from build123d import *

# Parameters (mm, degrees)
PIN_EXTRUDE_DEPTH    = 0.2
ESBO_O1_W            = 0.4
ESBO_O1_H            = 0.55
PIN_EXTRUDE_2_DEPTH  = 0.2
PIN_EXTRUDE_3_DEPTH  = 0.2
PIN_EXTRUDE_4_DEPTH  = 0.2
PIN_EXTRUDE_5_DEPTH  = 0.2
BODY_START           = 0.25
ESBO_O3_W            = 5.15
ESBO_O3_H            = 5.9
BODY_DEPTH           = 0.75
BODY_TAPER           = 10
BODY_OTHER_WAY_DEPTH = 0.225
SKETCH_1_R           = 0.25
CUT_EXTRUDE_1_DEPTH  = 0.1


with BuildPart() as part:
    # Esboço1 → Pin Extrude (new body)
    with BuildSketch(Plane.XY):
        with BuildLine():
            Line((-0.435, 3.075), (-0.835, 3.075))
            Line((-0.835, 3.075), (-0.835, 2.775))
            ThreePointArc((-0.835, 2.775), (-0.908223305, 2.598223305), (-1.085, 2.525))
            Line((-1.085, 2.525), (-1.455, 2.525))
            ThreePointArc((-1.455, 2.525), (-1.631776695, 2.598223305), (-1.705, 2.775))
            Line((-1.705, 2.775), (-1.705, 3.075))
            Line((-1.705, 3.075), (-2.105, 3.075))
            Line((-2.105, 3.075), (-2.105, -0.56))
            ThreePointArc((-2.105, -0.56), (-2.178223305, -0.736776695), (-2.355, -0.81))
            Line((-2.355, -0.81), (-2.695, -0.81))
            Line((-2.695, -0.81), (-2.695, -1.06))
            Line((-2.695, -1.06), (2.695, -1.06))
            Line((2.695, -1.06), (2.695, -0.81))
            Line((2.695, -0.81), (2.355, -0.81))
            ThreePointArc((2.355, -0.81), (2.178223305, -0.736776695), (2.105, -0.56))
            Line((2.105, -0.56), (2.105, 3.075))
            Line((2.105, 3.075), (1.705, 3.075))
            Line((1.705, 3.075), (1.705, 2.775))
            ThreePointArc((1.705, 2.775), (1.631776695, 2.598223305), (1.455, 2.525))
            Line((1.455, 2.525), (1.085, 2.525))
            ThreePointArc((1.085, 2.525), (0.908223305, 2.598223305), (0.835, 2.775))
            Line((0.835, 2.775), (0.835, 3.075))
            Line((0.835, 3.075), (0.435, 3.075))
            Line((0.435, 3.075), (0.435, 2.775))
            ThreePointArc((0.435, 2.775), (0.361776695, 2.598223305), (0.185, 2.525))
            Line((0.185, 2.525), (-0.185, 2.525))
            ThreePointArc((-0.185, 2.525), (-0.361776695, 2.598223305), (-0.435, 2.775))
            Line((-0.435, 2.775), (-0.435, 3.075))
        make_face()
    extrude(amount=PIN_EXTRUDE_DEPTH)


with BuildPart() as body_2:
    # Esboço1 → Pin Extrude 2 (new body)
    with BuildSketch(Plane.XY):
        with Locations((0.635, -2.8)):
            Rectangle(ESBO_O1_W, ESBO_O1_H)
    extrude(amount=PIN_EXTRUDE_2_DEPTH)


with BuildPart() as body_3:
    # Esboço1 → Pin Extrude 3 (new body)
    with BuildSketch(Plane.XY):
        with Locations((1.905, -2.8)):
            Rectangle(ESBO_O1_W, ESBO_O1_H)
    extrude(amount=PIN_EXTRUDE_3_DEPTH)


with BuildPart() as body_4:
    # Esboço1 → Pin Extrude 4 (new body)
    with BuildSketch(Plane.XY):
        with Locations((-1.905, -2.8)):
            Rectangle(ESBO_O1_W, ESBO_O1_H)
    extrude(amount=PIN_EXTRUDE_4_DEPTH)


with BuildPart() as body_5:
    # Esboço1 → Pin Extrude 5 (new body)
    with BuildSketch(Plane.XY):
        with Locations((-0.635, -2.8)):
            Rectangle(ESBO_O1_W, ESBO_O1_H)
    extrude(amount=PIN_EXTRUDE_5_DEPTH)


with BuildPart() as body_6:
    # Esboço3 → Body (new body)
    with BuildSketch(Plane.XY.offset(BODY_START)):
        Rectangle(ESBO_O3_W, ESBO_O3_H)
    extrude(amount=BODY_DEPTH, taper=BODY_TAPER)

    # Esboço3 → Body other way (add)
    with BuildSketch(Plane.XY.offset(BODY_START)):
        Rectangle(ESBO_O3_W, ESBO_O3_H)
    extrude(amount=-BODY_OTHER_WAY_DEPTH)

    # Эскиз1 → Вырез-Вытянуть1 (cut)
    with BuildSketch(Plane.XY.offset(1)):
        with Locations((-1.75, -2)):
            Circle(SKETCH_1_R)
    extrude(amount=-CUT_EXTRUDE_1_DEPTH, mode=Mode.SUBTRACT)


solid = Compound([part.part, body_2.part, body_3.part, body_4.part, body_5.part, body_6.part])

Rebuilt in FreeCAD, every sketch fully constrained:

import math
import FreeCAD as App
import Part
import Sketcher

V = App.Vector
Q = App.Units.Quantity

doc = App.newDocument("Part")
body = doc.addObject("PartDesign::Body", "Body")

# Sketch on XY plane
sketch1 = doc.addObject("Sketcher::SketchObject", "Sketch")
body.addObject(sketch1)
sketch1.AttachmentSupport = (doc.XY_Plane, [""])
sketch1.MapMode = "FlatFace"
sketch1.addGeometry([
    Part.LineSegment(V(-0.43, 3.08, 0), V(-0.83, 3.08, 0)),  # 0
    Part.LineSegment(V(-0.83, 3.08, 0), V(-0.83, 2.77, 0)),  # 1
    Part.ArcOfCircle(Part.Circle(V(-1.09, 2.78, 0), V(0, 0, 1), 0.25), math.radians(-90), math.radians(0)),  # 2
    Part.LineSegment(V(-1.08, 2.52, 0), V(-1.46, 2.52, 0)),  # 3
    Part.ArcOfCircle(Part.Circle(V(-1.45, 2.78, 0), V(0, 0, 1), 0.25), math.radians(-180), math.radians(-90)),  # 4
    Part.LineSegment(V(-1.71, 2.77, 0), V(-1.71, 3.08, 0)),  # 5
    Part.LineSegment(V(-1.71, 3.08, 0), V(-2.1, 3.08, 0)),  # 6
    Part.LineSegment(V(-2.1, 3.08, 0), V(-2.1, -0.56, 0)),  # 7
    Part.ArcOfCircle(Part.Circle(V(-2.36, -0.56, 0), V(0, 0, 1), 0.25), math.radians(-90), math.radians(0)),  # 8
    Part.LineSegment(V(-2.35, -0.81, 0), V(-2.69, -0.81, 0)),  # 9
    Part.LineSegment(V(-2.69, -0.81, 0), V(-2.69, -1.06, 0)),  # 10
    Part.LineSegment(V(-2.69, -1.06, 0), V(2.69, -1.06, 0)),  # 11
    Part.LineSegment(V(2.69, -1.06, 0), V(2.69, -0.81, 0)),  # 12
    Part.LineSegment(V(2.69, -0.81, 0), V(2.35, -0.81, 0)),  # 13
    Part.ArcOfCircle(Part.Circle(V(2.36, -0.56, 0), V(0, 0, 1), 0.25), math.radians(-180), math.radians(-90)),  # 14
    Part.LineSegment(V(2.1, -0.56, 0), V(2.1, 3.08, 0)),  # 15
    Part.LineSegment(V(2.1, 3.08, 0), V(1.71, 3.08, 0)),  # 16
    Part.LineSegment(V(1.71, 3.08, 0), V(1.71, 2.77, 0)),  # 17
    Part.ArcOfCircle(Part.Circle(V(1.45, 2.78, 0), V(0, 0, 1), 0.25), math.radians(-90), math.radians(0)),  # 18
    Part.LineSegment(V(1.46, 2.52, 0), V(1.08, 2.52, 0)),  # 19
    Part.ArcOfCircle(Part.Circle(V(1.09, 2.78, 0), V(0, 0, 1), 0.25), math.radians(-180), math.radians(-90)),  # 20
    Part.LineSegment(V(0.83, 2.77, 0), V(0.83, 3.08, 0)),  # 21
    Part.LineSegment(V(0.83, 3.08, 0), V(0.43, 3.08, 0)),  # 22
    Part.LineSegment(V(0.43, 3.08, 0), V(0.43, 2.77, 0)),  # 23
    Part.ArcOfCircle(Part.Circle(V(0.18, 2.78, 0), V(0, 0, 1), 0.25), math.radians(-90), math.radians(0)),  # 24
    Part.LineSegment(V(0.18, 2.52, 0), V(-0.18, 2.52, 0)),  # 25
    Part.ArcOfCircle(Part.Circle(V(-0.18, 2.78, 0), V(0, 0, 1), 0.25), math.radians(-180), math.radians(-90)),  # 26
    Part.LineSegment(V(-0.43, 2.77, 0), V(-0.43, 3.08, 0)),  # 27
], False)
sketch1.addConstraint([
    Sketcher.Constraint("Coincident", 0, 2, 1, 1),
    Sketcher.Constraint("Tangent", 1, 2, 2, 2),
    Sketcher.Constraint("Tangent", 2, 1, 3, 1),
    Sketcher.Constraint("Tangent", 3, 2, 4, 2),
    Sketcher.Constraint("Tangent", 4, 1, 5, 1),
    Sketcher.Constraint("Coincident", 5, 2, 6, 1),
    Sketcher.Constraint("Coincident", 6, 2, 7, 1),
    Sketcher.Constraint("Tangent", 7, 2, 8, 2),
    Sketcher.Constraint("Tangent", 8, 1, 9, 1),
    Sketcher.Constraint("Coincident", 9, 2, 10, 1),
    Sketcher.Constraint("Coincident", 10, 2, 11, 1),
    Sketcher.Constraint("Coincident", 11, 2, 12, 1),
    Sketcher.Constraint("Coincident", 12, 2, 13, 1),
    Sketcher.Constraint("Tangent", 13, 2, 14, 2),
    Sketcher.Constraint("Tangent", 14, 1, 15, 1),
    Sketcher.Constraint("Coincident", 15, 2, 16, 1),
    Sketcher.Constraint("Coincident", 16, 2, 17, 1),
    Sketcher.Constraint("Tangent", 17, 2, 18, 2),
    Sketcher.Constraint("Tangent", 18, 1, 19, 1),
    Sketcher.Constraint("Tangent", 19, 2, 20, 2),
    Sketcher.Constraint("Tangent", 20, 1, 21, 1),
    Sketcher.Constraint("Coincident", 21, 2, 22, 1),
    Sketcher.Constraint("Coincident", 22, 2, 23, 1),
    Sketcher.Constraint("Tangent", 23, 2, 24, 2),
    Sketcher.Constraint("Tangent", 24, 1, 25, 1),
    Sketcher.Constraint("Tangent", 25, 2, 26, 2),
    Sketcher.Constraint("Tangent", 26, 1, 27, 1),
    Sketcher.Constraint("Coincident", 27, 2, 0, 1),
    Sketcher.Constraint("Horizontal", 0),
    Sketcher.Constraint("Vertical", 1),
    Sketcher.Constraint("Horizontal", 3),
    Sketcher.Constraint("Vertical", 5),
    Sketcher.Constraint("Horizontal", 6),
    Sketcher.Constraint("Vertical", 7),
    Sketcher.Constraint("Horizontal", 9),
    Sketcher.Constraint("Vertical", 10),
    Sketcher.Constraint("Horizontal", 11),
    Sketcher.Constraint("Vertical", 12),
    Sketcher.Constraint("Horizontal", 13),
    Sketcher.Constraint("Vertical", 15),
    Sketcher.Constraint("Horizontal", 16),
    Sketcher.Constraint("Vertical", 17),
    Sketcher.Constraint("Horizontal", 19),
    Sketcher.Constraint("Vertical", 21),
    Sketcher.Constraint("Horizontal", 22),
    Sketcher.Constraint("Vertical", 23),
    Sketcher.Constraint("Horizontal", 25),
    Sketcher.Constraint("Vertical", 27),
    Sketcher.Constraint("Equal", 2, 4),
    Sketcher.Constraint("Equal", 4, 8),
    Sketcher.Constraint("Equal", 8, 14),
    Sketcher.Constraint("Equal", 14, 18),
    Sketcher.Constraint("Equal", 18, 20),
    Sketcher.Constraint("Equal", 20, 24),
    Sketcher.Constraint("Equal", 24, 26),
    Sketcher.Constraint("Symmetric", 8, 3, 14, 3, -2),
    Sketcher.Constraint("Symmetric", 4, 3, 18, 3, -2),
    Sketcher.Constraint("Symmetric", 0, 2, 21, 2, -2),
    Sketcher.Constraint("Horizontal", 20, 3, 24, 3),
    Sketcher.Constraint("Horizontal", 0, 2, 5, 2),
    Sketcher.Constraint("Horizontal", 6, 2, 15, 2),
    Sketcher.Constraint("Equal", 0, 6),
    Sketcher.Constraint("Equal", 9, 13),
    Sketcher.Constraint("Equal", 16, 22),
    Sketcher.Constraint("Equal", 19, 25),
    Sketcher.Constraint("Radius", 2, Q("0.25 mm")),
    Sketcher.Constraint("DistanceX", 0, 2, 0, 1, Q("0.4 mm")),
    Sketcher.Constraint("DistanceY", 1, 2, 1, 1, Q("0.3 mm")),
    Sketcher.Constraint("DistanceX", 3, 2, 3, 1, Q("0.37 mm")),
    Sketcher.Constraint("DistanceX", 9, 2, 9, 1, Q("0.34 mm")),
    Sketcher.Constraint("DistanceY", 10, 2, 10, 1, Q("0.25 mm")),
    Sketcher.Constraint("DistanceY", 7, 2, 7, 1, Q("3.635 mm")),
    Sketcher.Constraint("DistanceY", 8, 3, -1, 1, Q("0.56 mm")),
])
pad1 = doc.addObject("PartDesign::Pad", "Pad")
body.addObject(pad1)
pad1.Profile = sketch1
pad1.Length = 0.2
body2 = doc.addObject("PartDesign::Body", "Body001")

# Sketch on XY plane
sketch2 = doc.addObject("Sketcher::SketchObject", "Sketch001")
body2.addObject(sketch2)
sketch2.AttachmentSupport = (doc.getObject("XY_Plane001"), [""])
sketch2.MapMode = "FlatFace"
sketch2.addGeometry([
    Part.LineSegment(V(0.43, -2.52, 0), V(0.43, -3.08, 0)),
    Part.LineSegment(V(0.43, -3.08, 0), V(0.83, -3.08, 0)),
    Part.LineSegment(V(0.83, -3.08, 0), V(0.83, -2.52, 0)),
    Part.LineSegment(V(0.83, -2.52, 0), V(0.43, -2.52, 0)),
], False)
sketch2.addConstraint([
    Sketcher.Constraint("Coincident", 0, 2, 1, 1),
    Sketcher.Constraint("Coincident", 1, 2, 2, 1),
    Sketcher.Constraint("Coincident", 2, 2, 3, 1),
    Sketcher.Constraint("Coincident", 3, 2, 0, 1),
    Sketcher.Constraint("Vertical", 0),
    Sketcher.Constraint("Horizontal", 1),
    Sketcher.Constraint("Vertical", 2),
    Sketcher.Constraint("Horizontal", 3),
    Sketcher.Constraint("DistanceX", 1, 1, 1, 2, Q("0.4 mm")),
    Sketcher.Constraint("DistanceY", 0, 2, 0, 1, Q("0.55 mm")),
    Sketcher.Constraint("DistanceX", -1, 1, 0, 2, Q("0.435 mm")),
    Sketcher.Constraint("DistanceY", 0, 2, -1, 1, Q("3.075 mm")),
])
pad2 = doc.addObject("PartDesign::Pad", "Pad001")
body2.addObject(pad2)
pad2.Profile = sketch2
pad2.Length = 0.2
body3 = doc.addObject("PartDesign::Body", "Body002")

# Sketch on XY plane
sketch3 = doc.addObject("Sketcher::SketchObject", "Sketch002")
body3.addObject(sketch3)
sketch3.AttachmentSupport = (doc.getObject("XY_Plane002"), [""])
sketch3.MapMode = "FlatFace"
sketch3.addGeometry([
    Part.LineSegment(V(1.71, -2.52, 0), V(1.71, -3.08, 0)),
    Part.LineSegment(V(1.71, -3.08, 0), V(2.1, -3.08, 0)),
    Part.LineSegment(V(2.1, -3.08, 0), V(2.1, -2.52, 0)),
    Part.LineSegment(V(2.1, -2.52, 0), V(1.71, -2.52, 0)),
], False)
sketch3.addConstraint([
    Sketcher.Constraint("Coincident", 0, 2, 1, 1),
    Sketcher.Constraint("Coincident", 1, 2, 2, 1),
    Sketcher.Constraint("Coincident", 2, 2, 3, 1),
    Sketcher.Constraint("Coincident", 3, 2, 0, 1),
    Sketcher.Constraint("Vertical", 0),
    Sketcher.Constraint("Horizontal", 1),
    Sketcher.Constraint("Vertical", 2),
    Sketcher.Constraint("Horizontal", 3),
    Sketcher.Constraint("DistanceX", 1, 1, 1, 2, Q("0.4 mm")),
    Sketcher.Constraint("DistanceY", 0, 2, 0, 1, Q("0.55 mm")),
    Sketcher.Constraint("DistanceX", -1, 1, 0, 2, Q("1.705 mm")),
    Sketcher.Constraint("DistanceY", 0, 2, -1, 1, Q("3.075 mm")),
])
pad3 = doc.addObject("PartDesign::Pad", "Pad002")
body3.addObject(pad3)
pad3.Profile = sketch3
pad3.Length = 0.2
body4 = doc.addObject("PartDesign::Body", "Body003")

# Sketch on XY plane
sketch4 = doc.addObject("Sketcher::SketchObject", "Sketch003")
body4.addObject(sketch4)
sketch4.AttachmentSupport = (doc.getObject("XY_Plane003"), [""])
sketch4.MapMode = "FlatFace"
sketch4.addGeometry([
    Part.LineSegment(V(-2.1, -2.52, 0), V(-2.1, -3.08, 0)),
    Part.LineSegment(V(-2.1, -3.08, 0), V(-1.71, -3.08, 0)),
    Part.LineSegment(V(-1.71, -3.08, 0), V(-1.71, -2.52, 0)),
    Part.LineSegment(V(-1.71, -2.52, 0), V(-2.1, -2.52, 0)),
], False)
sketch4.addConstraint([
    Sketcher.Constraint("Coincident", 0, 2, 1, 1),
    Sketcher.Constraint("Coincident", 1, 2, 2, 1),
    Sketcher.Constraint("Coincident", 2, 2, 3, 1),
    Sketcher.Constraint("Coincident", 3, 2, 0, 1),
    Sketcher.Constraint("Vertical", 0),
    Sketcher.Constraint("Horizontal", 1),
    Sketcher.Constraint("Vertical", 2),
    Sketcher.Constraint("Horizontal", 3),
    Sketcher.Constraint("DistanceX", 1, 1, 1, 2, Q("0.4 mm")),
    Sketcher.Constraint("DistanceY", 0, 2, 0, 1, Q("0.55 mm")),
    Sketcher.Constraint("DistanceX", 0, 2, -1, 1, Q("2.105 mm")),
    Sketcher.Constraint("DistanceY", 0, 2, -1, 1, Q("3.075 mm")),
])
pad4 = doc.addObject("PartDesign::Pad", "Pad003")
body4.addObject(pad4)
pad4.Profile = sketch4
pad4.Length = 0.2
body5 = doc.addObject("PartDesign::Body", "Body004")

# Sketch on XY plane
sketch5 = doc.addObject("Sketcher::SketchObject", "Sketch004")
body5.addObject(sketch5)
sketch5.AttachmentSupport = (doc.getObject("XY_Plane004"), [""])
sketch5.MapMode = "FlatFace"
sketch5.addGeometry([
    Part.LineSegment(V(-0.83, -2.52, 0), V(-0.83, -3.08, 0)),
    Part.LineSegment(V(-0.83, -3.08, 0), V(-0.43, -3.08, 0)),
    Part.LineSegment(V(-0.43, -3.08, 0), V(-0.43, -2.52, 0)),
    Part.LineSegment(V(-0.43, -2.52, 0), V(-0.83, -2.52, 0)),
], False)
sketch5.addConstraint([
    Sketcher.Constraint("Coincident", 0, 2, 1, 1),
    Sketcher.Constraint("Coincident", 1, 2, 2, 1),
    Sketcher.Constraint("Coincident", 2, 2, 3, 1),
    Sketcher.Constraint("Coincident", 3, 2, 0, 1),
    Sketcher.Constraint("Vertical", 0),
    Sketcher.Constraint("Horizontal", 1),
    Sketcher.Constraint("Vertical", 2),
    Sketcher.Constraint("Horizontal", 3),
    Sketcher.Constraint("DistanceX", 1, 1, 1, 2, Q("0.4 mm")),
    Sketcher.Constraint("DistanceY", 0, 2, 0, 1, Q("0.55 mm")),
    Sketcher.Constraint("DistanceX", 0, 2, -1, 1, Q("0.835 mm")),
    Sketcher.Constraint("DistanceY", 0, 2, -1, 1, Q("3.075 mm")),
])
pad5 = doc.addObject("PartDesign::Pad", "Pad004")
body5.addObject(pad5)
pad5.Profile = sketch5
pad5.Length = 0.2
body6 = doc.addObject("PartDesign::Body", "Body005")

# Sketch on XY plane
sketch6 = doc.addObject("Sketcher::SketchObject", "Sketch005")
body6.addObject(sketch6)
sketch6.AttachmentSupport = (doc.getObject("XY_Plane005"), [""])
sketch6.MapMode = "FlatFace"
sketch6.AttachmentOffset = App.Placement(V(0, 0, 0.25), App.Rotation())
sketch6.addGeometry([
    Part.LineSegment(V(-3, 3, 0), V(-3, -3, 0)),
    Part.LineSegment(V(-3, -3, 0), V(3, -3, 0)),
    Part.LineSegment(V(3, -3, 0), V(3, 3, 0)),
    Part.LineSegment(V(3, 3, 0), V(-3, 3, 0)),
], False)
sketch6.addConstraint([
    Sketcher.Constraint("Coincident", 0, 2, 1, 1),
    Sketcher.Constraint("Coincident", 1, 2, 2, 1),
    Sketcher.Constraint("Coincident", 2, 2, 3, 1),
    Sketcher.Constraint("Coincident", 3, 2, 0, 1),
    Sketcher.Constraint("Vertical", 0),
    Sketcher.Constraint("Horizontal", 1),
    Sketcher.Constraint("Vertical", 2),
    Sketcher.Constraint("Horizontal", 3),
    Sketcher.Constraint("Symmetric", 0, 2, 2, 2, -1, 1),
    Sketcher.Constraint("DistanceY", 0, 2, 0, 1, Q("5.9 mm")),
    Sketcher.Constraint("DistanceX", 1, 1, 1, 2, Q("5.15 mm")),
])
pad6 = doc.addObject("PartDesign::Pad", "Pad005")
body6.addObject(pad6)
pad6.Profile = sketch6
pad6.Length = 0.75
pad6.TaperAngle = -10

# Sketch on XY plane
sketch7 = doc.addObject("Sketcher::SketchObject", "Sketch006")
body6.addObject(sketch7)
sketch7.AttachmentSupport = (doc.getObject("XY_Plane005"), [""])
sketch7.MapMode = "FlatFace"
sketch7.AttachmentOffset = App.Placement(V(0, 0, 0.25), App.Rotation())
sketch7.addGeometry([
    Part.LineSegment(V(-3, 3, 0), V(-3, -3, 0)),
    Part.LineSegment(V(-3, -3, 0), V(3, -3, 0)),
    Part.LineSegment(V(3, -3, 0), V(3, 3, 0)),
    Part.LineSegment(V(3, 3, 0), V(-3, 3, 0)),
], False)
sketch7.addConstraint([
    Sketcher.Constraint("Coincident", 0, 2, 1, 1),
    Sketcher.Constraint("Coincident", 1, 2, 2, 1),
    Sketcher.Constraint("Coincident", 2, 2, 3, 1),
    Sketcher.Constraint("Coincident", 3, 2, 0, 1),
    Sketcher.Constraint("Vertical", 0),
    Sketcher.Constraint("Horizontal", 1),
    Sketcher.Constraint("Vertical", 2),
    Sketcher.Constraint("Horizontal", 3),
    Sketcher.Constraint("Symmetric", 0, 2, 2, 2, -1, 1),
    Sketcher.Constraint("DistanceY", 0, 2, 0, 1, Q("5.9 mm")),
    Sketcher.Constraint("DistanceX", 1, 1, 1, 2, Q("5.15 mm")),
])
pad7 = doc.addObject("PartDesign::Pad", "Pad006")
body6.addObject(pad7)
pad7.Profile = sketch7
pad7.Length = 0.225
pad7.Reversed = True

# Sketch on XY plane
sketch8 = doc.addObject("Sketcher::SketchObject", "Sketch007")
body6.addObject(sketch8)
sketch8.AttachmentSupport = (doc.getObject("XY_Plane005"), [""])
sketch8.MapMode = "FlatFace"
sketch8.AttachmentOffset = App.Placement(V(0, 0, 1), App.Rotation())
sketch8.addGeometry(Part.Circle(V(-1.75, -2, 0), V(0, 0, 1), 0.25), False)
sketch8.addConstraint([
    Sketcher.Constraint("Diameter", 0, Q("0.5 mm")),
    Sketcher.Constraint("DistanceY", 0, 3, -1, 1, Q("2 mm")),
    Sketcher.Constraint("DistanceX", 0, 3, -1, 1, Q("1.75 mm")),
])
pocket1 = doc.addObject("PartDesign::Pocket", "Pocket")
body6.addObject(pocket1)
pocket1.Profile = sketch8
pocket1.Length = 0.1

doc.recompute()
